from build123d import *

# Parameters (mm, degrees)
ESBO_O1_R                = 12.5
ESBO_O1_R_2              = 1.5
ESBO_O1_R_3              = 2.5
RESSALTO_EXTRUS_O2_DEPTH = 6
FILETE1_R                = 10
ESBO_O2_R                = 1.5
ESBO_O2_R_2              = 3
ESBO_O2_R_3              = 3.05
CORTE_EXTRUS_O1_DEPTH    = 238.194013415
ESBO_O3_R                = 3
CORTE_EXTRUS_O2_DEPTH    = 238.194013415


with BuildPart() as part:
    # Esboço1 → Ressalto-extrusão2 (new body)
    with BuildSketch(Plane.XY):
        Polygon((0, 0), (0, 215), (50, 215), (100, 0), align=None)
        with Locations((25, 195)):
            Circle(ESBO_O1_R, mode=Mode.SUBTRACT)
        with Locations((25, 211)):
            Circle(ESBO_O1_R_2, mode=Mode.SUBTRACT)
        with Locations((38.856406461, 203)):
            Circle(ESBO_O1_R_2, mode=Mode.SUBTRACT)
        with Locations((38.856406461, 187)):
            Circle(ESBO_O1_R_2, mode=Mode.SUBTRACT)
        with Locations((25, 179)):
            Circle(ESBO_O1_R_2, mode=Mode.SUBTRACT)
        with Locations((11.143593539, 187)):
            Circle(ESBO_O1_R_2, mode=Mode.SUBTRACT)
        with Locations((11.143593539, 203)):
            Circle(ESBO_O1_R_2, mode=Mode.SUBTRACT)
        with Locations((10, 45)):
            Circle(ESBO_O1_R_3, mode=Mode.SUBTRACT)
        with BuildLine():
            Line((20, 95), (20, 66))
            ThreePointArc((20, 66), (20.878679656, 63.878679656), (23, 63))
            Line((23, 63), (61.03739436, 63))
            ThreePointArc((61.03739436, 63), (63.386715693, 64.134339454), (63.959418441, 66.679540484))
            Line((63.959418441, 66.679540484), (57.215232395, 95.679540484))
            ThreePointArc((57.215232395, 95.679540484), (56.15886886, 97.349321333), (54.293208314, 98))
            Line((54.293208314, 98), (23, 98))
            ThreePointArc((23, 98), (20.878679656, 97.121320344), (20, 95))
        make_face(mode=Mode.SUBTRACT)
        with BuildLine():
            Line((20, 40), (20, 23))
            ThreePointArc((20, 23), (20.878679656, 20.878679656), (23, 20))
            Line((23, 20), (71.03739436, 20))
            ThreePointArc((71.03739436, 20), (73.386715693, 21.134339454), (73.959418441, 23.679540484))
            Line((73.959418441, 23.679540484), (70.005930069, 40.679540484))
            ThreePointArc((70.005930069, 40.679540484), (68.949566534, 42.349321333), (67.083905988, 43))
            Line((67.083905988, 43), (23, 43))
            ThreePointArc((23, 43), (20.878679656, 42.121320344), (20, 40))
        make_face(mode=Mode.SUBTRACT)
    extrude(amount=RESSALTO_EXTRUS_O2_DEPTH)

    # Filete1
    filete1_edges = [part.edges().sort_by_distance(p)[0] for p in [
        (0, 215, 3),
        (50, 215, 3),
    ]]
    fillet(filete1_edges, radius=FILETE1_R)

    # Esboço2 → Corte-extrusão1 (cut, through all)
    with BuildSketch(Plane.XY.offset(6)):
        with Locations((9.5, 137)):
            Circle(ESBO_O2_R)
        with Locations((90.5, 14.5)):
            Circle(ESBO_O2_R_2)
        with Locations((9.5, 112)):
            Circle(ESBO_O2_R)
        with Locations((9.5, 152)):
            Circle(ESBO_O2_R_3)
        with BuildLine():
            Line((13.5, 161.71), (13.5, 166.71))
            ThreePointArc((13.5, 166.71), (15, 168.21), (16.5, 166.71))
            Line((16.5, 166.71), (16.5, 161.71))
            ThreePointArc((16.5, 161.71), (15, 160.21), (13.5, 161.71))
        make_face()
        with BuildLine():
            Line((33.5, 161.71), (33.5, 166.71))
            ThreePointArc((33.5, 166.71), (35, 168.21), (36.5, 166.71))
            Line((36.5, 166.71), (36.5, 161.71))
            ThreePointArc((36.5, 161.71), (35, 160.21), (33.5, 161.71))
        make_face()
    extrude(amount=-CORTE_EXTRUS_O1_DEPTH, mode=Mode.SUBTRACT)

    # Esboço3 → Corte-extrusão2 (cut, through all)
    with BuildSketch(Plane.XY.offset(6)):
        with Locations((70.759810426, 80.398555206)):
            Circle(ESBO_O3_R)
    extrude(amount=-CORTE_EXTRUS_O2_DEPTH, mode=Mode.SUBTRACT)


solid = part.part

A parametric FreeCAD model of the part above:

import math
import FreeCAD as App
import Part
import Sketcher

V = App.Vector
Q = App.Units.Quantity


def edges_at(feature, points):
    """Names of the edges that pass closest to the given points."""
    edges = feature.Shape.Edges
    near = lambda p: min(range(len(edges)), key=lambda i: edges[i].distToShape(Part.Vertex(*p))[0])
    return sorted({f"Edge{near(p) + 1}" for p in points})

doc = App.newDocument("Part")
body = doc.addObject("PartDesign::Body", "Body")

# Sketch on XY plane
sketch1 = body.newObject("Sketcher::SketchObject", "Sketch")
sketch1.AttachmentSupport = (doc.getObject("XY_Plane"), [""])
sketch1.MapMode = "FlatFace"
sketch1.addGeometry([
    Part.LineSegment(V(0, 215, 0), V(0, 0, 0)),  # 0
    Part.LineSegment(V(0, 0, 0), V(100, 0, 0)),  # 1
    Part.LineSegment(V(100, 0, 0), V(50, 215, 0)),  # 2
    Part.LineSegment(V(50, 215, 0), V(0, 215, 0)),  # 3
    Part.ArcOfCircle(Part.Circle(V(23, 40, 0), V(0, 0, 1), 3), math.radians(90), math.radians(180)),  # 4
    Part.LineSegment(V(23, 43, 0), V(67.1, 43, 0)),  # 5
    Part.ArcOfCircle(Part.Circle(V(67.1, 40, 0), V(0, 0, 1), 3), math.radians(13), math.radians(90)),  # 6
    Part.LineSegment(V(70, 40.7, 0), V(74, 23.7, 0)),  # 7
    Part.ArcOfCircle(Part.Circle(V(71, 23, 0), V(0, 0, 1), 3), math.radians(-90), math.radians(13)),  # 8
    Part.LineSegment(V(71, 20, 0), V(23, 20, 0)),  # 9
    Part.ArcOfCircle(Part.Circle(V(23, 23, 0), V(0, 0, 1), 3), math.radians(180), math.radians(270)),  # 10
    Part.LineSegment(V(20, 23, 0), V(20, 40, 0)),  # 11
    Part.ArcOfCircle(Part.Circle(V(23, 95, 0), V(0, 0, 1), 3), math.radians(90), math.radians(180)),  # 12
    Part.LineSegment(V(23, 98, 0), V(54.3, 98, 0)),  # 13
    Part.ArcOfCircle(Part.Circle(V(54.3, 95, 0), V(0, 0, 1), 3), math.radians(13), math.radians(90)),  # 14
    Part.LineSegment(V(57.2, 95.7, 0), V(64, 66.7, 0)),  # 15
    Part.ArcOfCircle(Part.Circle(V(61, 66, 0), V(0, 0, 1), 3), math.radians(-90), math.radians(13)),  # 16
    Part.LineSegment(V(61, 63, 0), V(23, 63, 0)),  # 17
    Part.ArcOfCircle(Part.Circle(V(23, 66, 0), V(0, 0, 1), 3), math.radians(180), math.radians(270)),  # 18
    Part.LineSegment(V(20, 66, 0), V(20, 95, 0)),  # 19
    Part.Circle(V(10, 45, 0), V(0, 0, 1), 2.5),  # 20
    Part.Circle(V(38.9, 187, 0), V(0, 0, 1), 1.5),  # 21
    Part.Circle(V(25, 179, 0), V(0, 0, 1), 1.5),  # 22
    Part.Circle(V(38.9, 203, 0), V(0, 0, 1), 1.5),  # 23
    Part.Circle(V(25, 195, 0), V(0, 0, 1), 12.5),  # 24
    Part.Circle(V(25, 211, 0), V(0, 0, 1), 1.5),  # 25
    Part.Circle(V(11.1, 187, 0), V(0, 0, 1), 1.5),  # 26
    Part.Circle(V(11.1, 203, 0), V(0, 0, 1), 1.5),  # 27
], False)
sketch1.addConstraint([
    Sketcher.Constraint("Coincident", 0, 2, 1, 1),
    Sketcher.Constraint("Coincident", 1, 2, 2, 1),
    Sketcher.Constraint("Coincident", 2, 2, 3, 1),
    Sketcher.Constraint("Coincident", 3, 2, 0, 1),
    Sketcher.Constraint("Tangent", 4, 1, 5, 1),
    Sketcher.Constraint("Tangent", 5, 2, 6, 2),
    Sketcher.Constraint("Tangent", 6, 1, 7, 1),
    Sketcher.Constraint("Tangent", 7, 2, 8, 2),
    Sketcher.Constraint("Tangent", 8, 1, 9, 1),
    Sketcher.Constraint("Tangent", 9, 2, 10, 2),
    Sketcher.Constraint("Tangent", 10, 1, 11, 1),
    Sketcher.Constraint("Tangent", 11, 2, 4, 2),
    Sketcher.Constraint("Tangent", 12, 1, 13, 1),
    Sketcher.Constraint("Tangent", 13, 2, 14, 2),
    Sketcher.Constraint("Tangent", 14, 1, 15, 1),
    Sketcher.Constraint("Tangent", 15, 2, 16, 2),
    Sketcher.Constraint("Tangent", 16, 1, 17, 1),
    Sketcher.Constraint("Tangent", 17, 2, 18, 2),
    Sketcher.Constraint("Tangent", 18, 1, 19, 1),
    Sketcher.Constraint("Tangent", 19, 2, 12, 2),
    Sketcher.Constraint("Vertical", 0),
    Sketcher.Constraint("Horizontal", 1),
    Sketcher.Constraint("Horizontal", 3),
    Sketcher.Constraint("Horizontal", 5),
    Sketcher.Constraint("Horizontal", 9),
    Sketcher.Constraint("Vertical", 11),
    Sketcher.Constraint("Horizontal", 13),
    Sketcher.Constraint("Horizontal", 17),
    Sketcher.Constraint("Vertical", 19),
    Sketcher.Constraint("Coincident", 0, 2, -1, 1),
    Sketcher.Constraint("Equal", 4, 6),
    Sketcher.Constraint("Equal", 6, 8),
    Sketcher.Constraint("Equal", 8, 10),
    Sketcher.Constraint("Equal", 10, 12),
    Sketcher.Constraint("Equal", 12, 14),
    Sketcher.Constraint("Equal", 14, 16),
    Sketcher.Constraint("Equal", 16, 18),
    Sketcher.Constraint("Equal", 21, 22),
    Sketcher.Constraint("Equal", 22, 23),
    Sketcher.Constraint("Equal", 23, 25),
    Sketcher.Constraint("Equal", 25, 26),
    Sketcher.Constraint("Equal", 26, 27),
    Sketcher.Constraint("Parallel", 2, 7),
    Sketcher.Constraint("Parallel", 7, 15),
    Sketcher.Constraint("Horizontal", 21, 3, 26, 3),
    Sketcher.Constraint("Horizontal", 23, 3, 27, 3),
    Sketcher.Constraint("Vertical", 10, 3, 12, 3),
    Sketcher.Constraint("Vertical", 21, 3, 23, 3),
    Sketcher.Constraint("Vertical", 22, 3, 24, 3),
    Sketcher.Constraint("Vertical", 24, 3, 25, 3),
    Sketcher.Constraint("Vertical", 26, 3, 27, 3),
    Sketcher.Constraint("Diameter", 20, Q("5 mm")),
    Sketcher.Constraint("Diameter", 21, Q("3 mm")),
    Sketcher.Constraint("Diameter", 24, Q("25 mm")),
    Sketcher.Constraint("Radius", 4, Q("3 mm")),
    Sketcher.Constraint("DistanceX", 1, 1, 1, 2, Q("100 mm")),
    Sketcher.Constraint("DistanceX", 3, 2, 3, 1, Q("50 mm")),
    Sketcher.Constraint("DistanceY", 0, 2, 0, 1, Q("215 mm")),
    Sketcher.Constraint("DistanceY", 11, 1, 11, 2, Q("17 mm")),
    Sketcher.Constraint("DistanceY", 19, 1, 19, 2, Q("29 mm")),
    Sketcher.Constraint("DistanceX", -1, 1, 4, 3, Q("23 mm")),
    Sketcher.Constraint("DistanceY", -1, 1, 4, 3, Q("40 mm")),
    Sketcher.Constraint("DistanceY", -1, 1, 12, 3, Q("95 mm")),
    Sketcher.Constraint("DistanceX", -1, 1, 20, 3, Q("10 mm")),
    Sketcher.Constraint("DistanceY", -1, 1, 20, 3, Q("45 mm")),
    Sketcher.Constraint("DistanceY", -1, 1, 21, 3, Q("187 mm")),
    Sketcher.Constraint("DistanceX", -1, 1, 22, 3, Q("25 mm")),
    Sketcher.Constraint("DistanceY", -1, 1, 22, 3, Q("179 mm")),
    Sketcher.Constraint("DistanceY", -1, 1, 23, 3, Q("203 mm")),
    Sketcher.Constraint("DistanceY", -1, 1, 24, 3, Q("195 mm")),
    Sketcher.Constraint("DistanceY", -1, 1, 25, 3, Q("211 mm")),
    Sketcher.Constraint("DistanceX", 16, 3, 8, 3, Q("10 mm")),
    Sketcher.Constraint("DistanceX", 13, 1, 13, 2, Q("31.293208 mm")),
    Sketcher.Constraint("DistanceX", 21, 3, 14, 3, Q("15.436802 mm")),
    Sketcher.Constraint("DistanceX", -1, 1, 26, 3, Q("11.143594 mm")),
])
pad1 = body.newObject("PartDesign::Pad", "Pad")
pad1.Profile = sketch1
pad1.Length = 6
doc.recompute()

fillet = body.newObject("PartDesign::Fillet", "Fillet")
fillet.Base = (pad1, edges_at(pad1, [(0, 215, 3), (50, 215, 3)]))
fillet.Radius = 10

# Sketch on XY plane
sketch2 = body.newObject("Sketcher::SketchObject", "Sketch001")
sketch2.AttachmentSupport = (doc.getObject("XY_Plane"), [""])
sketch2.MapMode = "FlatFace"
sketch2.AttachmentOffset = App.Placement(V(0, 0, 6), App.Rotation())
sketch2.addGeometry([
    Part.Circle(V(9.5, 137, 0), V(0, 0, 1), 1.5),  # 0
    Part.Circle(V(90.5, 14.5, 0), V(0, 0, 1), 3),  # 1
    Part.Circle(V(9.5, 112, 0), V(0, 0, 1), 1.5),  # 2
    Part.Circle(V(9.5, 152, 0), V(0, 0, 1), 3),  # 3
    Part.LineSegment(V(13.5, 166.7, 0), V(13.5, 161.7, 0)),  # 4
    Part.ArcOfCircle(Part.Circle(V(15, 161.7, 0), V(0, 0, 1), 1.5), math.radians(180), math.radians(360)),  # 5
    Part.LineSegment(V(16.5, 161.7, 0), V(16.5, 166.7, 0)),  # 6
    Part.ArcOfCircle(Part.Circle(V(15, 166.7, 0), V(0, 0, 1), 1.5), math.radians(0), math.radians(180)),  # 7
    Part.LineSegment(V(33.5, 166.7, 0), V(33.5, 161.7, 0)),  # 8
    Part.ArcOfCircle(Part.Circle(V(35, 161.7, 0), V(0, 0, 1), 1.5), math.radians(180), math.radians(360)),  # 9
    Part.LineSegment(V(36.5, 161.7, 0), V(36.5, 166.7, 0)),  # 10
    Part.ArcOfCircle(Part.Circle(V(35, 166.7, 0), V(0, 0, 1), 1.5), math.radians(0), math.radians(180)),  # 11
], False)
sketch2.addConstraint([
    Sketcher.Constraint("Tangent", 4, 2, 5, 1),
    Sketcher.Constraint("Tangent", 5, 2, 6, 1),
    Sketcher.Constraint("Tangent", 6, 2, 7, 1),
    Sketcher.Constraint("Tangent", 7, 2, 4, 1),
    Sketcher.Constraint("Tangent", 8, 2, 9, 1),
    Sketcher.Constraint("Tangent", 9, 2, 10, 1),
    Sketcher.Constraint("Tangent", 10, 2, 11, 1),
    Sketcher.Constraint("Tangent", 11, 2, 8, 1),
    Sketcher.Constraint("Vertical", 4),
    Sketcher.Constraint("Vertical", 6),
    Sketcher.Constraint("Vertical", 8),
    Sketcher.Constraint("Vertical", 10),
    Sketcher.Constraint("Equal", 0, 2),
    Sketcher.Constraint("Equal", 2, 5),
    Sketcher.Constraint("Equal", 7, 9),
    Sketcher.Constraint("Horizontal", 5, 3, 9, 3),
    Sketcher.Constraint("Horizontal", 7, 3, 11, 3),
    Sketcher.Constraint("Vertical", 0, 3, 2, 3),
    Sketcher.Constraint("Vertical", 2, 3, 3, 3),
    Sketcher.Constraint("Diameter", 0, Q("3 mm")),
    Sketcher.Constraint("Diameter", 1, Q("6 mm")),
    Sketcher.Constraint("Diameter", 3, Q("6.1 mm")),
    Sketcher.Constraint("DistanceY", 4, 2, 4, 1, Q("5 mm")),
    Sketcher.Constraint("DistanceY", -1, 1, 0, 3, Q("137 mm")),
    Sketcher.Constraint("DistanceY", -1, 1, 2, 3, Q("112 mm")),
    Sketcher.Constraint("DistanceY", -1, 1, 3, 3, Q("152 mm")),
    Sketcher.Constraint("DistanceX", -1, 1, 5, 3, Q("15 mm")),
    Sketcher.Constraint("DistanceX", -1, 1, 9, 3, Q("35 mm")),
    Sketcher.Constraint("DistanceX", 0, 3, 1, 3, Q("81 mm")),
    Sketcher.Constraint("DistanceX", 3, 3, 4, 2, Q("4 mm")),
    Sketcher.Constraint("DistanceY", -1, 1, 1, 3, Q("14.5 mm")),
    Sketcher.Constraint("DistanceY", -1, 1, 5, 3, Q("161.71 mm")),
])
pocket1 = body.newObject("PartDesign::Pocket", "Pocket")
pocket1.Profile = sketch2
pocket1.Type = "ThroughAll"

# Sketch on XY plane
sketch3 = body.newObject("Sketcher::SketchObject", "Sketch002")
sketch3.AttachmentSupport = (doc.getObject("XY_Plane"), [""])
sketch3.MapMode = "FlatFace"
sketch3.AttachmentOffset = App.Placement(V(0, 0, 6), App.Rotation())
sketch3.addGeometry(Part.Circle(V(70.8, 80.4, 0), V(0, 0, 1), 3), False)
sketch3.addConstraint([
    Sketcher.Constraint("Diameter", 0, Q("6 mm")),
    Sketcher.Constraint("DistanceX", -1, 1, 0, 3, Q("70.75981 mm")),
    Sketcher.Constraint("DistanceY", -1, 1, 0, 3, Q("80.398555 mm")),
])
pocket2 = body.newObject("PartDesign::Pocket", "Pocket001")
pocket2.Profile = sketch3
pocket2.Type = "ThroughAll"

doc.recompute()
